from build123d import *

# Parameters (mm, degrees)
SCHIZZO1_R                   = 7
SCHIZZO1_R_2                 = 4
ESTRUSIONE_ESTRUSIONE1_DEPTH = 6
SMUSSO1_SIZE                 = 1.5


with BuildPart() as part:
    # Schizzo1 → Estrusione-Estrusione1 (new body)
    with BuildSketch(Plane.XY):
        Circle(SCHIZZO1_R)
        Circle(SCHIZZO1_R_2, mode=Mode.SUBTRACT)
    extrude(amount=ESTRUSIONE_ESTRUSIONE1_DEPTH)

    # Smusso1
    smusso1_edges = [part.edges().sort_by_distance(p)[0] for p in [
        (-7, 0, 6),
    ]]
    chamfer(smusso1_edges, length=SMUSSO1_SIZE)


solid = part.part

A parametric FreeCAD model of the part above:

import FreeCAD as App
import Part
import Sketcher
from FreeCAD import Vector


def edges_at(feature, points):
    """Names of the edges that pass closest to the given points."""
    edges = feature.Shape.Edges
    near = lambda p: min(range(len(edges)), key=lambda i: edges[i].distToShape(Part.Vertex(*p))[0])
    return sorted({f"Edge{near(p) + 1}" for p in points})

doc = App.newDocument("Part")
body = doc.addObject("PartDesign::Body", "Body")

# Sketch on XY plane
sketch1 = body.newObject("Sketcher::SketchObject", "Sketch")
sketch1.AttachmentSupport = (doc.getObject("XY_Plane"), [""])
sketch1.MapMode = "FlatFace"
sketch1.addGeometry(Part.Circle(Vector(0, 0, 0), Vector(0, 0, 1), 7), False)
sketch1.addGeometry(Part.Circle(Vector(0, 0, 0), Vector(0, 0, 1), 4), False)
sketch1.addConstraint(Sketcher.Constraint("Coincident", 0, 3, -1, 1))
sketch1.addConstraint(Sketcher.Constraint("Coincident", 1, 3, -1, 1))
sketch1.addConstraint(Sketcher.Constraint("Diameter", 0, 14.0))
sketch1.addConstraint(Sketcher.Constraint("Diameter", 1, 8.0))
pad1 = body.newObject("PartDesign::Pad", "Pad")
pad1.Profile = sketch1
pad1.Length = 6
doc.recompute()

chamfer = body.newObject("PartDesign::Chamfer", "Chamfer")
chamfer.Base = (pad1, edges_at(pad1, [(-7, 0, 6)]))
chamfer.Size = 1.5

doc.recompute()
